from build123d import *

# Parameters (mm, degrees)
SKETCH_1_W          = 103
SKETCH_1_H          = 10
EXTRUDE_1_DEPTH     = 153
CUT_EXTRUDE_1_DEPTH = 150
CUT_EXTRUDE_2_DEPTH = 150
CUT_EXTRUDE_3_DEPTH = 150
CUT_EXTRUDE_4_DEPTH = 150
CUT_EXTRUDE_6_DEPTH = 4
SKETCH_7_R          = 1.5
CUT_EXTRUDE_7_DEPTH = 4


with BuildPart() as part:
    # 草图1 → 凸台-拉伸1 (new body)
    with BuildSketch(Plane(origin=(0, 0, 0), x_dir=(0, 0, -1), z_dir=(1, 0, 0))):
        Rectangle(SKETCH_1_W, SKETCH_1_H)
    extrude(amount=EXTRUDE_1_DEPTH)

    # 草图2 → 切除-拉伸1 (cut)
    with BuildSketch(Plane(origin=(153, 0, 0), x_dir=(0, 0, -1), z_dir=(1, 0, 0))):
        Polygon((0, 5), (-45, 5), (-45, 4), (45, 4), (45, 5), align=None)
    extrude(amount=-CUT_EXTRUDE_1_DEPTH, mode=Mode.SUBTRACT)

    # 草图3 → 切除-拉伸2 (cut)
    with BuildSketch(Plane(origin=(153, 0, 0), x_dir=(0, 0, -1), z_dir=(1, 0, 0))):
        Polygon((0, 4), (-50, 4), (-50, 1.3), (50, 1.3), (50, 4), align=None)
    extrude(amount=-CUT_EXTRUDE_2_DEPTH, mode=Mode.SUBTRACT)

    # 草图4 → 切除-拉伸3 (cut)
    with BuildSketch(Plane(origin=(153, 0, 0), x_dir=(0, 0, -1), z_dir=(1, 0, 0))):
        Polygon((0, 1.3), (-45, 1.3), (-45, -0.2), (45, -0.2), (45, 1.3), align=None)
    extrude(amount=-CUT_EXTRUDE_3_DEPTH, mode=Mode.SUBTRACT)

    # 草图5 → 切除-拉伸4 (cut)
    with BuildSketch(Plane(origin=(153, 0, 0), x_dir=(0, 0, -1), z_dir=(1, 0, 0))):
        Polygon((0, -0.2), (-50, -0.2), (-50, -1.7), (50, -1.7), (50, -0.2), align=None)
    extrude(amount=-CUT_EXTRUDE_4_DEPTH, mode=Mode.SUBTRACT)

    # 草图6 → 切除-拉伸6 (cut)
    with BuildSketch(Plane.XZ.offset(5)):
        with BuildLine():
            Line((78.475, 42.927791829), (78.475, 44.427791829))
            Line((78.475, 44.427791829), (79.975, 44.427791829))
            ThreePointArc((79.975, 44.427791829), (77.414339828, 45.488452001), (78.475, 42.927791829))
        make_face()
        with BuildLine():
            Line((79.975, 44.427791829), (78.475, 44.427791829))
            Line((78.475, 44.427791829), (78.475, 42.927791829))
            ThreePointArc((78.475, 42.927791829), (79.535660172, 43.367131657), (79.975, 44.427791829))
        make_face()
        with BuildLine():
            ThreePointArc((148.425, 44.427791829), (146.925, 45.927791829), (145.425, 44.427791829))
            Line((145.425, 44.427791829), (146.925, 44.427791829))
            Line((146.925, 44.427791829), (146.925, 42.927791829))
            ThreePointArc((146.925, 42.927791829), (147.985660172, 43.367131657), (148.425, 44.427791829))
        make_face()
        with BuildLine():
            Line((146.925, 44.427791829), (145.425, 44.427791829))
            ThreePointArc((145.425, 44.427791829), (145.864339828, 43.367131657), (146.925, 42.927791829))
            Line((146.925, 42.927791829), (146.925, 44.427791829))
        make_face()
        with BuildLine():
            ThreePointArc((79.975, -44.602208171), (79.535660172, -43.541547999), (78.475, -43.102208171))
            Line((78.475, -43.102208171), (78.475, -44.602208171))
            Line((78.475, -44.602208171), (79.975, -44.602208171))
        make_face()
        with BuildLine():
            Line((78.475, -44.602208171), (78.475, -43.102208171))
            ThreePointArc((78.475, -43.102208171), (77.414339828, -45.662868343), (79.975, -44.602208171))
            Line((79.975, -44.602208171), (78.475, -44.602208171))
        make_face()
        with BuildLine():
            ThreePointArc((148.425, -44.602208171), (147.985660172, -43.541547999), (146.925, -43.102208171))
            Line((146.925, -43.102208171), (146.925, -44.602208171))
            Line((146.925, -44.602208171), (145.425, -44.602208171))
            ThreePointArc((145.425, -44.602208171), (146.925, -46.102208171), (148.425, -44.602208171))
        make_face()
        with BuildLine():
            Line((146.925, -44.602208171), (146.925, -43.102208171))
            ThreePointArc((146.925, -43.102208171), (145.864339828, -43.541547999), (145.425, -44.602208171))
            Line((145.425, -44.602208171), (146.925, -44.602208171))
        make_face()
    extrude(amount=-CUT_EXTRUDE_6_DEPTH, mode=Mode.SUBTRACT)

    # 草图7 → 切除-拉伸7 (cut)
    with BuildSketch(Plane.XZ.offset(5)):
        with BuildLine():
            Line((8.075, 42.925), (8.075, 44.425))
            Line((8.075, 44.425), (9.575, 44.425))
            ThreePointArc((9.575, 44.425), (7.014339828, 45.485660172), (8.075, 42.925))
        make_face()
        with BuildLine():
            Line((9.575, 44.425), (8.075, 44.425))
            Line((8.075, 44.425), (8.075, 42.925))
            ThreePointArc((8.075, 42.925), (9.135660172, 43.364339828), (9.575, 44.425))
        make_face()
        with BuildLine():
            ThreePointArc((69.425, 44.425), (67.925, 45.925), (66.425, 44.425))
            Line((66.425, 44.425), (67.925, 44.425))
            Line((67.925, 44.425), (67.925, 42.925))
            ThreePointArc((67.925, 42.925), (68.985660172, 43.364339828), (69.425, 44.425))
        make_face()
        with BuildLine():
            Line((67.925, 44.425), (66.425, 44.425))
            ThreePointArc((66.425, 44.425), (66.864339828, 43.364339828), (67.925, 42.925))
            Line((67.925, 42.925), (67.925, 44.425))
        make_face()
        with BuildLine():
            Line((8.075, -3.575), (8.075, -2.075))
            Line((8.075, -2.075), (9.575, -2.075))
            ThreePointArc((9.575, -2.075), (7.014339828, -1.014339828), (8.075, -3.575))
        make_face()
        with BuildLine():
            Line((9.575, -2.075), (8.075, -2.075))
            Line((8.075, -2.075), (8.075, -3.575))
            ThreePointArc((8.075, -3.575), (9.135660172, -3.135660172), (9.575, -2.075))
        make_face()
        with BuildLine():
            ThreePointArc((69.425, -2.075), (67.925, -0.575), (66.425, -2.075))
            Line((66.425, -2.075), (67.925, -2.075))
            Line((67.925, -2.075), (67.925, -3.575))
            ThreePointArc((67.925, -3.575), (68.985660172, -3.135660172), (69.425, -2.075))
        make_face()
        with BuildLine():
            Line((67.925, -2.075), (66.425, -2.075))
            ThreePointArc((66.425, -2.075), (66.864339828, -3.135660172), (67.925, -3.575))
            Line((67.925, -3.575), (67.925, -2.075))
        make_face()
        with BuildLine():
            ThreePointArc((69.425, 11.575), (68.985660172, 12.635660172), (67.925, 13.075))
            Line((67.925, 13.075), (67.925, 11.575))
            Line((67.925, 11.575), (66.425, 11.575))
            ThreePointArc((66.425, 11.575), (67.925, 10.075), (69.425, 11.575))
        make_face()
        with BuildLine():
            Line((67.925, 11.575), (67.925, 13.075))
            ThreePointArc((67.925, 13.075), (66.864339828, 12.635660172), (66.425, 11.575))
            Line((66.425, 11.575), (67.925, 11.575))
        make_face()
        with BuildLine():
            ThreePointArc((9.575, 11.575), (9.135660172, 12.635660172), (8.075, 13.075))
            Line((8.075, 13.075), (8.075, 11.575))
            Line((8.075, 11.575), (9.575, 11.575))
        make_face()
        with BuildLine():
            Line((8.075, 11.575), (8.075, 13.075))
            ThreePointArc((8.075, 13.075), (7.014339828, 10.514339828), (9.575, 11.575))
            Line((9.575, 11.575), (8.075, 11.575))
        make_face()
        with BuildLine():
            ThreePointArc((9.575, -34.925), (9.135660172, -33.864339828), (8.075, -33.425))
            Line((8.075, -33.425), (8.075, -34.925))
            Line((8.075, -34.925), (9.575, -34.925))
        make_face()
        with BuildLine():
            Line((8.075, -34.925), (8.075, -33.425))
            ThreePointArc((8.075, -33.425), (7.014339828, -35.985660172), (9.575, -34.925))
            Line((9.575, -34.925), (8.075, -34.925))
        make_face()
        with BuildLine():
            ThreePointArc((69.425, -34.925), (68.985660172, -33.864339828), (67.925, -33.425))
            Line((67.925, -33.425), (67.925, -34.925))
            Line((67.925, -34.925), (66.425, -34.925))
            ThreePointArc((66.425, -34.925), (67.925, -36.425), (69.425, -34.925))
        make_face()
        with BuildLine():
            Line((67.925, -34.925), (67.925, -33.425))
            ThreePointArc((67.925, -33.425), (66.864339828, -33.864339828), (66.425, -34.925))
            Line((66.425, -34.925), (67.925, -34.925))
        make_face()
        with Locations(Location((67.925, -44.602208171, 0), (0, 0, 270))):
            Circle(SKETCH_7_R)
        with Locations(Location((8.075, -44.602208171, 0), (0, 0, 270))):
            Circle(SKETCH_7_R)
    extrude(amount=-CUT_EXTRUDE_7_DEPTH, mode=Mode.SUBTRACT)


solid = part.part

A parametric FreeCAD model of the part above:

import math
import FreeCAD as App
import Part
import Sketcher
from FreeCAD import Vector
Q = App.Units.Quantity

doc = App.newDocument("Part")
body = doc.addObject("PartDesign::Body", "Body")

# Sketch on YZ plane
sketch1 = body.newObject("Sketcher::SketchObject", "Sketch")
sketch1.AttachmentSupport = (doc.getObject("YZ_Plane"), [""])
sketch1.MapMode = "FlatFace"
sketch1.addGeometry(Part.LineSegment(Vector(5, 52, 0), Vector(-5, 52, 0)), False)
sketch1.addGeometry(Part.LineSegment(Vector(-5, 52, 0), Vector(-5, -52, 0)), False)
sketch1.addGeometry(Part.LineSegment(Vector(-5, -52, 0), Vector(5, -52, 0)), False)
sketch1.addGeometry(Part.LineSegment(Vector(5, -52, 0), Vector(5, 52, 0)), False)
sketch1.addConstraint(Sketcher.Constraint("Coincident", 0, 2, 1, 1))
sketch1.addConstraint(Sketcher.Constraint("Coincident", 1, 2, 2, 1))
sketch1.addConstraint(Sketcher.Constraint("Coincident", 2, 2, 3, 1))
sketch1.addConstraint(Sketcher.Constraint("Coincident", 3, 2, 0, 1))
sketch1.addConstraint(Sketcher.Constraint("Horizontal", 0))
sketch1.addConstraint(Sketcher.Constraint("Vertical", 1))
sketch1.addConstraint(Sketcher.Constraint("Horizontal", 2))
sketch1.addConstraint(Sketcher.Constraint("Vertical", 3))
sketch1.addConstraint(Sketcher.Constraint("Symmetric", 0, 2, 2, 2, -1, 1))
sketch1.addConstraint(Sketcher.Constraint("DistanceX", 0, 2, 0, 1, Q("10 mm")))
sketch1.addConstraint(Sketcher.Constraint("DistanceY", 1, 2, 1, 1, Q("103 mm")))
pad1 = body.newObject("PartDesign::Pad", "Pad")
pad1.Profile = sketch1
pad1.Length = 153

# Sketch on YZ plane
sketch2 = body.newObject("Sketcher::SketchObject", "Sketch001")
sketch2.AttachmentSupport = (doc.getObject("YZ_Plane"), [""])
sketch2.MapMode = "FlatFace"
sketch2.AttachmentOffset = App.Placement(Vector(0, 0, 153), App.Rotation())
sketch2.addGeometry(Part.LineSegment(Vector(5, 45, 0), Vector(4, 45, 0)), False)
sketch2.addGeometry(Part.LineSegment(Vector(4, 45, 0), Vector(4, -45, 0)), False)
sketch2.addGeometry(Part.LineSegment(Vector(4, -45, 0), Vector(5, -45, 0)), False)
sketch2.addGeometry(Part.LineSegment(Vector(5, -45, 0), Vector(5, 45, 0)), False)
sketch2.addConstraint(Sketcher.Constraint("Coincident", 0, 2, 1, 1))
sketch2.addConstraint(Sketcher.Constraint("Coincident", 1, 2, 2, 1))
sketch2.addConstraint(Sketcher.Constraint("Coincident", 2, 2, 3, 1))
sketch2.addConstraint(Sketcher.Constraint("Coincident", 3, 2, 0, 1))
sketch2.addConstraint(Sketcher.Constraint("Horizontal", 0))
sketch2.addConstraint(Sketcher.Constraint("Vertical", 1))
sketch2.addConstraint(Sketcher.Constraint("Horizontal", 2))
sketch2.addConstraint(Sketcher.Constraint("Vertical", 3))
sketch2.addConstraint(Sketcher.Constraint("DistanceX", 0, 2, 0, 1, Q("1 mm")))
sketch2.addConstraint(Sketcher.Constraint("DistanceY", 1, 2, 1, 1, Q("90 mm")))
sketch2.addConstraint(Sketcher.Constraint("DistanceX", -1, 1, 0, 2, Q("4 mm")))
sketch2.addConstraint(Sketcher.Constraint("DistanceY", -1, 1, 0, 2, Q("45 mm")))
pocket1 = body.newObject("PartDesign::Pocket", "Pocket")
pocket1.Profile = sketch2
pocket1.Length = 150

# Sketch on YZ plane
sketch3 = body.newObject("Sketcher::SketchObject", "Sketch002")
sketch3.AttachmentSupport = (doc.getObject("YZ_Plane"), [""])
sketch3.MapMode = "FlatFace"
sketch3.AttachmentOffset = App.Placement(Vector(0, 0, 153), App.Rotation())
sketch3.addGeometry(Part.LineSegment(Vector(4, 50, 0), Vector(1.3, 50, 0)), False)
sketch3.addGeometry(Part.LineSegment(Vector(1.3, 50, 0), Vector(1.3, -50, 0)), False)
sketch3.addGeometry(Part.LineSegment(Vector(1.3, -50, 0), Vector(4, -50, 0)), False)
sketch3.addGeometry(Part.LineSegment(Vector(4, -50, 0), Vector(4, 50, 0)), False)
sketch3.addConstraint(Sketcher.Constraint("Coincident", 0, 2, 1, 1))
sketch3.addConstraint(Sketcher.Constraint("Coincident", 1, 2, 2, 1))
sketch3.addConstraint(Sketcher.Constraint("Coincident", 2, 2, 3, 1))
sketch3.addConstraint(Sketcher.Constraint("Coincident", 3, 2, 0, 1))
sketch3.addConstraint(Sketcher.Constraint("Horizontal", 0))
sketch3.addConstraint(Sketcher.Constraint("Vertical", 1))
sketch3.addConstraint(Sketcher.Constraint("Horizontal", 2))
sketch3.addConstraint(Sketcher.Constraint("Vertical", 3))
sketch3.addConstraint(Sketcher.Constraint("DistanceY", 1, 2, 1, 1, Q("100 mm")))
sketch3.addConstraint(Sketcher.Constraint("DistanceX", 0, 2, 0, 1, Q("2.7 mm")))
sketch3.addConstraint(Sketcher.Constraint("DistanceY", -1, 1, 0, 2, Q("50 mm")))
sketch3.addConstraint(Sketcher.Constraint("DistanceX", -1, 1, 2, 2, Q("4 mm")))
pocket2 = body.newObject("PartDesign::Pocket", "Pocket001")
pocket2.Profile = sketch3
pocket2.Length = 150

# Sketch on YZ plane
sketch4 = body.newObject("Sketcher::SketchObject", "Sketch003")
sketch4.AttachmentSupport = (doc.getObject("YZ_Plane"), [""])
sketch4.MapMode = "FlatFace"
sketch4.AttachmentOffset = App.Placement(Vector(0, 0, 153), App.Rotation())
sketch4.addGeometry(Part.LineSegment(Vector(1.3, 45, 0), Vector(-0.2, 45, 0)), False)
sketch4.addGeometry(Part.LineSegment(Vector(-0.2, 45, 0), Vector(-0.2, -45, 0)), False)
sketch4.addGeometry(Part.LineSegment(Vector(-0.2, -45, 0), Vector(1.3, -45, 0)), False)
sketch4.addGeometry(Part.LineSegment(Vector(1.3, -45, 0), Vector(1.3, 45, 0)), False)
sketch4.addConstraint(Sketcher.Constraint("Coincident", 0, 2, 1, 1))
sketch4.addConstraint(Sketcher.Constraint("Coincident", 1, 2, 2, 1))
sketch4.addConstraint(Sketcher.Constraint("Coincident", 2, 2, 3, 1))
sketch4.addConstraint(Sketcher.Constraint("Coincident", 3, 2, 0, 1))
sketch4.addConstraint(Sketcher.Constraint("Horizontal", 0))
sketch4.addConstraint(Sketcher.Constraint("Vertical", 1))
sketch4.addConstraint(Sketcher.Constraint("Horizontal", 2))
sketch4.addConstraint(Sketcher.Constraint("Vertical", 3))
sketch4.addConstraint(Sketcher.Constraint("DistanceY", 1, 2, 1, 1, Q("90 mm")))
sketch4.addConstraint(Sketcher.Constraint("DistanceX", 0, 2, 0, 1, Q("1.5 mm")))
sketch4.addConstraint(Sketcher.Constraint("DistanceY", -1, 1, 0, 2, Q("45 mm")))
sketch4.addConstraint(Sketcher.Constraint("DistanceX", 0, 2, -1, 1, Q("0.2 mm")))
pocket3 = body.newObject("PartDesign::Pocket", "Pocket002")
pocket3.Profile = sketch4
pocket3.Length = 150

# Sketch on YZ plane
sketch5 = body.newObject("Sketcher::SketchObject", "Sketch004")
sketch5.AttachmentSupport = (doc.getObject("YZ_Plane"), [""])
sketch5.MapMode = "FlatFace"
sketch5.AttachmentOffset = App.Placement(Vector(0, 0, 153), App.Rotation())
sketch5.addGeometry(Part.LineSegment(Vector(-0.2, 50, 0), Vector(-1.7, 50, 0)), False)
sketch5.addGeometry(Part.LineSegment(Vector(-1.7, 50, 0), Vector(-1.7, -50, 0)), False)
sketch5.addGeometry(Part.LineSegment(Vector(-1.7, -50, 0), Vector(-0.2, -50, 0)), False)
sketch5.addGeometry(Part.LineSegment(Vector(-0.2, -50, 0), Vector(-0.2, 50, 0)), False)
sketch5.addConstraint(Sketcher.Constraint("Coincident", 0, 2, 1, 1))
sketch5.addConstraint(Sketcher.Constraint("Coincident", 1, 2, 2, 1))
sketch5.addConstraint(Sketcher.Constraint("Coincident", 2, 2, 3, 1))
sketch5.addConstraint(Sketcher.Constraint("Coincident", 3, 2, 0, 1))
sketch5.addConstraint(Sketcher.Constraint("Horizontal", 0))
sketch5.addConstraint(Sketcher.Constraint("Vertical", 1))
sketch5.addConstraint(Sketcher.Constraint("Horizontal", 2))
sketch5.addConstraint(Sketcher.Constraint("Vertical", 3))
sketch5.addConstraint(Sketcher.Constraint("DistanceY", 1, 2, 1, 1, Q("100 mm")))
sketch5.addConstraint(Sketcher.Constraint("DistanceX", 0, 2, 0, 1, Q("1.5 mm")))
sketch5.addConstraint(Sketcher.Constraint("DistanceY", -1, 1, 0, 2, Q("50 mm")))
sketch5.addConstraint(Sketcher.Constraint("DistanceX", 0, 2, -1, 1, Q("1.7 mm")))
pocket4 = body.newObject("PartDesign::Pocket", "Pocket003")
pocket4.Profile = sketch5
pocket4.Length = 150

# Sketch on XZ plane
sketch6 = body.newObject("Sketcher::SketchObject", "Sketch005")
sketch6.AttachmentSupport = (doc.getObject("XZ_Plane"), [""])
sketch6.MapMode = "FlatFace"
sketch6.AttachmentOffset = App.Placement(Vector(0, 0, 5), App.Rotation())
sketch6.addGeometry(Part.ArcOfCircle(Part.Circle(Vector(78.5, 44.4, 0), Vector(0, 0, 1), 1.5), math.radians(0), math.radians(270)), False)
sketch6.addGeometry(Part.ArcOfCircle(Part.Circle(Vector(78.5, 44.4, 0), Vector(0, 0, 1), 1.5), math.radians(-90), math.radians(0)), False)
sketch6.addGeometry(Part.ArcOfCircle(Part.Circle(Vector(146.9, 44.4, 0), Vector(0, 0, 1), 1.5), math.radians(0), math.radians(180)), False)
sketch6.addGeometry(Part.ArcOfCircle(Part.Circle(Vector(146.9, 44.4, 0), Vector(0, 0, 1), 1.5), math.radians(180), math.radians(270)), False)
sketch6.addGeometry(Part.ArcOfCircle(Part.Circle(Vector(146.9, 44.4, 0), Vector(0, 0, 1), 1.5), math.radians(-90), math.radians(0)), False)
sketch6.addGeometry(Part.ArcOfCircle(Part.Circle(Vector(78.5, -44.6, 0), Vector(0, 0, 1), 1.5), math.radians(0), math.radians(90)), False)
sketch6.addGeometry(Part.ArcOfCircle(Part.Circle(Vector(78.5, -44.6, 0), Vector(0, 0, 1), 1.5), math.radians(90), math.radians(360)), False)
sketch6.addGeometry(Part.ArcOfCircle(Part.Circle(Vector(146.9, -44.6, 0), Vector(0, 0, 1), 1.5), math.radians(0), math.radians(90)), False)
sketch6.addGeometry(Part.ArcOfCircle(Part.Circle(Vector(146.9, -44.6, 0), Vector(0, 0, 1), 1.5), math.radians(90), math.radians(180)), False)
sketch6.addGeometry(Part.ArcOfCircle(Part.Circle(Vector(146.9, -44.6, 0), Vector(0, 0, 1), 1.5), math.radians(180), math.radians(360)), False)
sketch6.addConstraint(Sketcher.Constraint("Tangent", 0, 1, 1, 2))
sketch6.addConstraint(Sketcher.Constraint("Coincident", 1, 1, 0, 2))
sketch6.addConstraint(Sketcher.Constraint("Tangent", 2, 2, 3, 1))
sketch6.addConstraint(Sketcher.Constraint("Tangent", 3, 2, 4, 1))
sketch6.addConstraint(Sketcher.Constraint("Tangent", 4, 2, 2, 1))
sketch6.addConstraint(Sketcher.Constraint("Tangent", 5, 1, 6, 2))
sketch6.addConstraint(Sketcher.Constraint("Coincident", 6, 1, 5, 2))
sketch6.addConstraint(Sketcher.Constraint("Tangent", 7, 2, 8, 1))
sketch6.addConstraint(Sketcher.Constraint("Tangent", 8, 2, 9, 1))
sketch6.addConstraint(Sketcher.Constraint("Tangent", 9, 2, 7, 1))
sketch6.addConstraint(Sketcher.Constraint("Equal", 1, 2))
sketch6.addConstraint(Sketcher.Constraint("Equal", 4, 5))
sketch6.addConstraint(Sketcher.Constraint("Equal", 6, 7))
sketch6.addConstraint(Sketcher.Constraint("Horizontal", 1, 3, 2, 3))
sketch6.addConstraint(Sketcher.Constraint("Horizontal", 6, 3, 7, 3))
sketch6.addConstraint(Sketcher.Constraint("Horizontal", 4, 3, 0, 1))
sketch6.addConstraint(Sketcher.Constraint("Horizontal", 0, 1, 2, 2))
sketch6.addConstraint(Sketcher.Constraint("Horizontal", 2, 2, 4, 2))
sketch6.addConstraint(Sketcher.Constraint("Horizontal", 9, 3, 5, 1))
sketch6.addConstraint(Sketcher.Constraint("Horizontal", 5, 1, 8, 2))
sketch6.addConstraint(Sketcher.Constraint("Horizontal", 8, 2, 9, 2))
sketch6.addConstraint(Sketcher.Constraint("Vertical", 1, 3, 5, 3))
sketch6.addConstraint(Sketcher.Constraint("Vertical", 4, 3, 7, 3))
sketch6.addConstraint(Sketcher.Constraint("Vertical", 6, 3, 1, 1))
sketch6.addConstraint(Sketcher.Constraint("Vertical", 9, 3, 3, 2))
sketch6.addConstraint(Sketcher.Constraint("Vertical", 1, 1, 6, 1))
sketch6.addConstraint(Sketcher.Constraint("Vertical", 3, 2, 7, 2))
sketch6.addConstraint(Sketcher.Constraint("Radius", 0, Q("1.5 mm")))
sketch6.addConstraint(Sketcher.Constraint("DistanceX", 1, 3, 2, 3, Q("68.45 mm")))
sketch6.addConstraint(Sketcher.Constraint("DistanceY", 5, 3, 1, 3, Q("89.03 mm")))
sketch6.addConstraint(Sketcher.Constraint("DistanceX", -1, 1, 0, 3, Q("78.475 mm")))
sketch6.addConstraint(Sketcher.Constraint("DistanceY", -1, 1, 0, 3, Q("44.427792 mm")))
pocket5 = body.newObject("PartDesign::Pocket", "Pocket004")
pocket5.Profile = sketch6
pocket5.Length = 4

# Sketch on XZ plane
sketch7 = body.newObject("Sketcher::SketchObject", "Sketch006")
sketch7.AttachmentSupport = (doc.getObject("XZ_Plane"), [""])
sketch7.MapMode = "FlatFace"
sketch7.AttachmentOffset = App.Placement(Vector(0, 0, 5), App.Rotation())
sketch7.addGeometry(Part.ArcOfCircle(Part.Circle(Vector(8.1, 44.4, 0), Vector(0, 0, 1), 1.5), math.radians(0), math.radians(270)), False)
sketch7.addGeometry(Part.ArcOfCircle(Part.Circle(Vector(8.1, 44.4, 0), Vector(0, 0, 1), 1.5), math.radians(-90), math.radians(0)), False)
sketch7.addGeometry(Part.ArcOfCircle(Part.Circle(Vector(67.9, 44.4, 0), Vector(0, 0, 1), 1.5), math.radians(0), math.radians(180)), False)
sketch7.addGeometry(Part.ArcOfCircle(Part.Circle(Vector(67.9, 44.4, 0), Vector(0, 0, 1), 1.5), math.radians(180), math.radians(270)), False)
sketch7.addGeometry(Part.ArcOfCircle(Part.Circle(Vector(67.9, 44.4, 0), Vector(0, 0, 1), 1.5), math.radians(-90), math.radians(0)), False)
sketch7.addGeometry(Part.ArcOfCircle(Part.Circle(Vector(8.1, -2.1, 0), Vector(0, 0, 1), 1.5), math.radians(0), math.radians(270)), False)
sketch7.addGeometry(Part.ArcOfCircle(Part.Circle(Vector(8.1, -2.1, 0), Vector(0, 0, 1), 1.5), math.radians(-90), math.radians(0)), False)
sketch7.addGeometry(Part.ArcOfCircle(Part.Circle(Vector(67.9, -2.1, 0), Vector(0, 0, 1), 1.5), math.radians(0), math.radians(180)), False)
sketch7.addGeometry(Part.ArcOfCircle(Part.Circle(Vector(67.9, -2.1, 0), Vector(0, 0, 1), 1.5), math.radians(180), math.radians(270)), False)
sketch7.addGeometry(Part.ArcOfCircle(Part.Circle(Vector(67.9, -2.1, 0), Vector(0, 0, 1), 1.5), math.radians(-90), math.radians(0)), False)
sketch7.addGeometry(Part.ArcOfCircle(Part.Circle(Vector(67.9, 11.6, 0), Vector(0, 0, 1), 1.5), math.radians(0), math.radians(90)), False)
sketch7.addGeometry(Part.ArcOfCircle(Part.Circle(Vector(67.9, 11.6, 0), Vector(0, 0, 1), 1.5), math.radians(90), math.radians(180)), False)
sketch7.addGeometry(Part.ArcOfCircle(Part.Circle(Vector(67.9, 11.6, 0), Vector(0, 0, 1), 1.5), math.radians(180), math.radians(360)), False)
sketch7.addGeometry(Part.ArcOfCircle(Part.Circle(Vector(8.1, 11.6, 0), Vector(0, 0, 1), 1.5), math.radians(0), math.radians(90)), False)
sketch7.addGeometry(Part.ArcOfCircle(Part.Circle(Vector(8.1, 11.6, 0), Vector(0, 0, 1), 1.5), math.radians(90), math.radians(360)), False)
sketch7.addGeometry(Part.ArcOfCircle(Part.Circle(Vector(8.1, -34.9, 0), Vector(0, 0, 1), 1.5), math.radians(0), math.radians(90)), False)
sketch7.addGeometry(Part.ArcOfCircle(Part.Circle(Vector(8.1, -34.9, 0), Vector(0, 0, 1), 1.5), math.radians(90), math.radians(360)), False)
sketch7.addGeometry(Part.ArcOfCircle(Part.Circle(Vector(67.9, -34.9, 0), Vector(0, 0, 1), 1.5), math.radians(0), math.radians(90)), False)
sketch7.addGeometry(Part.ArcOfCircle(Part.Circle(Vector(67.9, -34.9, 0), Vector(0, 0, 1), 1.5), math.radians(90), math.radians(180)), False)
sketch7.addGeometry(Part.ArcOfCircle(Part.Circle(Vector(67.9, -34.9, 0), Vector(0, 0, 1), 1.5), math.radians(180), math.radians(360)), False)
sketch7.addGeometry(Part.Circle(Vector(67.9, -44.6, 0), Vector(0, 0, 1), 1.5), False)
sketch7.addGeometry(Part.Circle(Vector(8.1, -44.6, 0), Vector(0, 0, 1), 1.5), False)
sketch7.addConstraint(Sketcher.Constraint("Tangent", 0, 1, 1, 2))
sketch7.addConstraint(Sketcher.Constraint("Coincident", 1, 1, 0, 2))
sketch7.addConstraint(Sketcher.Constraint("Tangent", 2, 2, 3, 1))
sketch7.addConstraint(Sketcher.Constraint("Tangent", 3, 2, 4, 1))
sketch7.addConstraint(Sketcher.Constraint("Tangent", 4, 2, 2, 1))
sketch7.addConstraint(Sketcher.Constraint("Tangent", 5, 1, 6, 2))
sketch7.addConstraint(Sketcher.Constraint("Coincident", 6, 1, 5, 2))
sketch7.addConstraint(Sketcher.Constraint("Tangent", 7, 2, 8, 1))
sketch7.addConstraint(Sketcher.Constraint("Tangent", 8, 2, 9, 1))
sketch7.addConstraint(Sketcher.Constraint("Tangent", 9, 2, 7, 1))
sketch7.addConstraint(Sketcher.Constraint("Tangent", 10, 2, 11, 1))
sketch7.addConstraint(Sketcher.Constraint("Tangent", 11, 2, 12, 1))
sketch7.addConstraint(Sketcher.Constraint("Tangent", 12, 2, 10, 1))
sketch7.addConstraint(Sketcher.Constraint("Tangent", 13, 1, 14, 2))
sketch7.addConstraint(Sketcher.Constraint("Coincident", 14, 1, 13, 2))
sketch7.addConstraint(Sketcher.Constraint("Tangent", 15, 1, 16, 2))
sketch7.addConstraint(Sketcher.Constraint("Coincident", 16, 1, 15, 2))
sketch7.addConstraint(Sketcher.Constraint("Tangent", 17, 2, 18, 1))
sketch7.addConstraint(Sketcher.Constraint("Tangent", 18, 2, 19, 1))
sketch7.addConstraint(Sketcher.Constraint("Tangent", 19, 2, 17, 1))
sketch7.addConstraint(Sketcher.Constraint("Equal", 1, 2))
sketch7.addConstraint(Sketcher.Constraint("Equal", 4, 5))
sketch7.addConstraint(Sketcher.Constraint("Equal", 6, 7))
sketch7.addConstraint(Sketcher.Constraint("Equal", 9, 10))
sketch7.addConstraint(Sketcher.Constraint("Equal", 12, 13))
sketch7.addConstraint(Sketcher.Constraint("Equal", 14, 15))
sketch7.addConstraint(Sketcher.Constraint("Equal", 16, 17))
sketch7.addConstraint(Sketcher.Constraint("Equal", 19, 20))
sketch7.addConstraint(Sketcher.Constraint("Equal", 20, 21))
sketch7.addConstraint(Sketcher.Constraint("Horizontal", 1, 3, 2, 3))
sketch7.addConstraint(Sketcher.Constraint("Horizontal", 6, 3, 7, 3))
sketch7.addConstraint(Sketcher.Constraint("Horizontal", 12, 3, 13, 3))
sketch7.addConstraint(Sketcher.Constraint("Horizontal", 16, 3, 17, 3))
sketch7.addConstraint(Sketcher.Constraint("Horizontal", 20, 3, 21, 3))
sketch7.addConstraint(Sketcher.Constraint("Horizontal", 4, 3, 0, 1))
sketch7.addConstraint(Sketcher.Constraint("Horizontal", 0, 1, 2, 2))
sketch7.addConstraint(Sketcher.Constraint("Horizontal", 2, 2, 4, 2))
sketch7.addConstraint(Sketcher.Constraint("Horizontal", 9, 3, 5, 1))
sketch7.addConstraint(Sketcher.Constraint("Horizontal", 5, 1, 7, 2))
sketch7.addConstraint(Sketcher.Constraint("Horizontal", 7, 2, 9, 2))
sketch7.addConstraint(Sketcher.Constraint("Horizontal", 14, 3, 11, 2))
sketch7.addConstraint(Sketcher.Constraint("Horizontal", 11, 2, 12, 2))
sketch7.addConstraint(Sketcher.Constraint("Horizontal", 12, 2, 13, 1))
sketch7.addConstraint(Sketcher.Constraint("Horizontal", 19, 3, 15, 1))
sketch7.addConstraint(Sketcher.Constraint("Horizontal", 15, 1, 18, 2))
sketch7.addConstraint(Sketcher.Constraint("Horizontal", 18, 2, 19, 2))
sketch7.addConstraint(Sketcher.Constraint("Vertical", 1, 3, 5, 3))
sketch7.addConstraint(Sketcher.Constraint("Vertical", 4, 3, 7, 3))
sketch7.addConstraint(Sketcher.Constraint("Vertical", 9, 3, 10, 3))
sketch7.addConstraint(Sketcher.Constraint("Vertical", 6, 3, 13, 3))
sketch7.addConstraint(Sketcher.Constraint("Vertical", 14, 3, 15, 3))
sketch7.addConstraint(Sketcher.Constraint("Vertical", 12, 3, 17, 3))
sketch7.addConstraint(Sketcher.Constraint("Vertical", 19, 3, 20, 3))
sketch7.addConstraint(Sketcher.Constraint("Vertical", 16, 3, 21, 3))
sketch7.addConstraint(Sketcher.Constraint("Vertical", 21, 3, 1, 1))
sketch7.addConstraint(Sketcher.Constraint("Vertical", 20, 3, 3, 2))
sketch7.addConstraint(Sketcher.Constraint("Vertical", 1, 1, 6, 1))
sketch7.addConstraint(Sketcher.Constraint("Vertical", 3, 2, 8, 2))
sketch7.addConstraint(Sketcher.Constraint("Vertical", 8, 2, 10, 2))
sketch7.addConstraint(Sketcher.Constraint("Vertical", 6, 1, 14, 1))
sketch7.addConstraint(Sketcher.Constraint("Vertical", 14, 1, 16, 1))
sketch7.addConstraint(Sketcher.Constraint("Vertical", 10, 2, 17, 2))
sketch7.addConstraint(Sketcher.Constraint("Diameter", 20, Q("3 mm")))
sketch7.addConstraint(Sketcher.Constraint("DistanceY", 5, 3, 1, 3, Q("46.5 mm")))
sketch7.addConstraint(Sketcher.Constraint("DistanceY", 15, 3, 14, 3, Q("46.5 mm")))
sketch7.addConstraint(Sketcher.Constraint("DistanceX", 1, 3, 2, 3, Q("59.85 mm")))
sketch7.addConstraint(Sketcher.Constraint("DistanceY", 7, 3, 10, 3, Q("13.65 mm")))
sketch7.addConstraint(Sketcher.Constraint("DistanceX", -1, 1, 0, 3, Q("8.075 mm")))
sketch7.addConstraint(Sketcher.Constraint("DistanceY", -1, 1, 0, 3, Q("44.425 mm")))
sketch7.addConstraint(Sketcher.Constraint("DistanceY", 20, 3, -1, 1, Q("44.602208 mm")))
pocket6 = body.newObject("PartDesign::Pocket", "Pocket005")
pocket6.Profile = sketch7
pocket6.Length = 4

doc.recompute()
